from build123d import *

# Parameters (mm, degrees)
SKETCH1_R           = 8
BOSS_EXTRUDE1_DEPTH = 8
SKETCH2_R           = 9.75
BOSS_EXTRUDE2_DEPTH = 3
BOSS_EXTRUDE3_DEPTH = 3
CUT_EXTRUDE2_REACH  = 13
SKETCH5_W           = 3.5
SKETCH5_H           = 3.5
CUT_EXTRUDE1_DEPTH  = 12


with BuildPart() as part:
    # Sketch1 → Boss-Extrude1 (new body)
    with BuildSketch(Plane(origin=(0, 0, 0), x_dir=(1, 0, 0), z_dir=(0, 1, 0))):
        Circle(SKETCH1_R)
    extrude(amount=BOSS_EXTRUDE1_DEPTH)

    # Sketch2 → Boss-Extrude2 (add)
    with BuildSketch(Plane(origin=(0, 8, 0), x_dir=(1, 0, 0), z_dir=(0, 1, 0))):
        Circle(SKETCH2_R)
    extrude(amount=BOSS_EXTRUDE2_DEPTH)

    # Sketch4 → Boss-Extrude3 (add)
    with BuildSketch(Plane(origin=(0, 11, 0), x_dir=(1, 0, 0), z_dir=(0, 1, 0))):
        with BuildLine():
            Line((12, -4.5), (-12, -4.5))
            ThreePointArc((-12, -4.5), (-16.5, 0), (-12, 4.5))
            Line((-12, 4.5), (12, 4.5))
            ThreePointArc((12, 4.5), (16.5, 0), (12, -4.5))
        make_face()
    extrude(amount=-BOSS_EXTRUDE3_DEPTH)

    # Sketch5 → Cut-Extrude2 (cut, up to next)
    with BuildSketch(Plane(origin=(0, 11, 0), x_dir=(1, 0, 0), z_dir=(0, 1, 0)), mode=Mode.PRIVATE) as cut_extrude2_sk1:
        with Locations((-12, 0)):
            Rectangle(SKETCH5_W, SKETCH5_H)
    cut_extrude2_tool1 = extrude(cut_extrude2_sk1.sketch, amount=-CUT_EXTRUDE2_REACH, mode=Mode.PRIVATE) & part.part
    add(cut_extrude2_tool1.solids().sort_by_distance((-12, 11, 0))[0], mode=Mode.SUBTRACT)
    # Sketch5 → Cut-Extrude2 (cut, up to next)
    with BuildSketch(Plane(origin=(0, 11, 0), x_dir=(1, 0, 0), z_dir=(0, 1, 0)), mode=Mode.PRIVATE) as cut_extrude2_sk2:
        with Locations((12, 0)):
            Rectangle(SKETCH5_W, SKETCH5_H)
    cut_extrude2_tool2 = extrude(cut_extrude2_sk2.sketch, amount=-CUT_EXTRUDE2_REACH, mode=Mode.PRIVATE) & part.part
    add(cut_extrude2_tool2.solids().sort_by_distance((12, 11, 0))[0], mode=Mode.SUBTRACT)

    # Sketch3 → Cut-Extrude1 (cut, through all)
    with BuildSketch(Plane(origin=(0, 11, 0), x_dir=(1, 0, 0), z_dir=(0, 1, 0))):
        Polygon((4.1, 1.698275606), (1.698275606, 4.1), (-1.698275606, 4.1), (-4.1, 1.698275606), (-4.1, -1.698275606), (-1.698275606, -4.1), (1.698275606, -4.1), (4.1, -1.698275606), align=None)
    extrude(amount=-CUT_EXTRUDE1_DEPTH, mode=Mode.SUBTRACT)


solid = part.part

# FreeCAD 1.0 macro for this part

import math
import FreeCAD as App
import Part
import Sketcher

V = App.Vector

doc = App.newDocument("Part")
body = doc.addObject("PartDesign::Body", "Body")

# Sketch on XZ plane
sketch1 = doc.addObject("Sketcher::SketchObject", "Sketch")
body.addObject(sketch1)
sketch1.AttachmentSupport = (doc.XZ_Plane, [""])
sketch1.MapMode = "FlatFace"
sketch1.addGeometry(Part.Circle(V(0, 0, 0), V(0, 0, 1), 8), False)
sketch1.addConstraint(Sketcher.Constraint("Coincident", 0, 3, -1, 1))
sketch1.addConstraint(Sketcher.Constraint("Diameter", 0, 16.0))
pad1 = doc.addObject("PartDesign::Pad", "Pad")
body.addObject(pad1)
pad1.Profile = sketch1
pad1.Length = 8
pad1.Reversed = True

# Sketch on XZ plane
sketch2 = doc.addObject("Sketcher::SketchObject", "Sketch001")
body.addObject(sketch2)
sketch2.AttachmentSupport = (doc.XZ_Plane, [""])
sketch2.MapMode = "FlatFace"
sketch2.AttachmentOffset = App.Placement(V(0, 0, -8), App.Rotation())
sketch2.addGeometry(Part.Circle(V(0, 0, 0), V(0, 0, 1), 10), False)
sketch2.addConstraint(Sketcher.Constraint("Coincident", 0, 3, -1, 1))
sketch2.addConstraint(Sketcher.Constraint("Diameter", 0, 19.5))
pad2 = doc.addObject("PartDesign::Pad", "Pad001")
body.addObject(pad2)
pad2.Profile = sketch2
pad2.Length = 3
pad2.Reversed = True

# Sketch on XZ plane
sketch3 = doc.addObject("Sketcher::SketchObject", "Sketch002")
body.addObject(sketch3)
sketch3.AttachmentSupport = (doc.XZ_Plane, [""])
sketch3.MapMode = "FlatFace"
sketch3.AttachmentOffset = App.Placement(V(0, 0, -11), App.Rotation())
sketch3.addGeometry(Part.LineSegment(V(-12, 4.5, 0), V(12, 4.5, 0)), False)
sketch3.addGeometry(Part.ArcOfCircle(Part.Circle(V(12, 0, 0), V(0, 0, 1), 4.5), math.radians(-90), math.radians(90)), False)
sketch3.addGeometry(Part.LineSegment(V(12, -4.5, 0), V(-12, -4.5, 0)), False)
sketch3.addGeometry(Part.ArcOfCircle(Part.Circle(V(-12, 0, 0), V(0, 0, 1), 4.5), math.radians(90), math.radians(270)), False)
sketch3.addConstraint(Sketcher.Constraint("Tangent", 0, 2, 1, 2))
sketch3.addConstraint(Sketcher.Constraint("Tangent", 1, 1, 2, 1))
sketch3.addConstraint(Sketcher.Constraint("Tangent", 2, 2, 3, 2))
sketch3.addConstraint(Sketcher.Constraint("Tangent", 3, 1, 0, 1))
sketch3.addConstraint(Sketcher.Constraint("Horizontal", 0))
sketch3.addConstraint(Sketcher.Constraint("Horizontal", 2))
sketch3.addConstraint(Sketcher.Constraint("Symmetric", 1, 3, 3, 3, -1, 1))
sketch3.addConstraint(Sketcher.Constraint("Radius", 1, 4.5))
sketch3.addConstraint(Sketcher.Constraint("DistanceX", 0, 1, 0, 2, 24.0))
pad3 = doc.addObject("PartDesign::Pad", "Pad002")
body.addObject(pad3)
pad3.Profile = sketch3
pad3.Length = 3

# Sketch on XZ plane
sketch4 = doc.addObject("Sketcher::SketchObject", "Sketch003")
body.addObject(sketch4)
sketch4.AttachmentSupport = (doc.XZ_Plane, [""])
sketch4.MapMode = "FlatFace"
sketch4.AttachmentOffset = App.Placement(V(0, 0, -11), App.Rotation())
sketch4.addGeometry(Part.LineSegment(V(-13.8, -1.8, 0), V(-13.8, 1.8, 0)), False)
sketch4.addGeometry(Part.LineSegment(V(-13.8, 1.8, 0), V(-10.2, 1.8, 0)), False)
sketch4.addGeometry(Part.LineSegment(V(-10.2, 1.8, 0), V(-10.2, -1.8, 0)), False)
sketch4.addGeometry(Part.LineSegment(V(-10.2, -1.8, 0), V(-13.8, -1.8, 0)), False)
sketch4.addConstraint(Sketcher.Constraint("Coincident", 0, 2, 1, 1))
sketch4.addConstraint(Sketcher.Constraint("Coincident", 1, 2, 2, 1))
sketch4.addConstraint(Sketcher.Constraint("Coincident", 2, 2, 3, 1))
sketch4.addConstraint(Sketcher.Constraint("Coincident", 3, 2, 0, 1))
sketch4.addConstraint(Sketcher.Constraint("Vertical", 0))
sketch4.addConstraint(Sketcher.Constraint("Horizontal", 1))
sketch4.addConstraint(Sketcher.Constraint("Vertical", 2))
sketch4.addConstraint(Sketcher.Constraint("Horizontal", 3))
sketch4.addConstraint(Sketcher.Constraint("Equal", 3, 0))
sketch4.addConstraint(Sketcher.Constraint("DistanceX", 1, 1, 1, 2, 3.5))
sketch4.addConstraint(Sketcher.Constraint("DistanceX", 0, 2, -1, 1, 13.75))
sketch4.addConstraint(Sketcher.Constraint("DistanceY", -1, 1, 0, 2, 1.75))
pocket1 = doc.addObject("PartDesign::Pocket", "Pocket")
body.addObject(pocket1)
pocket1.Profile = sketch4
pocket1.Type = "UpToFirst"
pocket1.Reversed = True

# Sketch on XZ plane
sketch5 = doc.addObject("Sketcher::SketchObject", "Sketch004")
body.addObject(sketch5)
sketch5.AttachmentSupport = (doc.XZ_Plane, [""])
sketch5.MapMode = "FlatFace"
sketch5.AttachmentOffset = App.Placement(V(0, 0, -11), App.Rotation())
sketch5.addGeometry(Part.LineSegment(V(10.2, -1.8, 0), V(10.2, 1.8, 0)), False)
sketch5.addGeometry(Part.LineSegment(V(10.2, 1.8, 0), V(13.8, 1.8, 0)), False)
sketch5.addGeometry(Part.LineSegment(V(13.8, 1.8, 0), V(13.8, -1.8, 0)), False)
sketch5.addGeometry(Part.LineSegment(V(13.8, -1.8, 0), V(10.2, -1.8, 0)), False)
sketch5.addConstraint(Sketcher.Constraint("Coincident", 0, 2, 1, 1))
sketch5.addConstraint(Sketcher.Constraint("Coincident", 1, 2, 2, 1))
sketch5.addConstraint(Sketcher.Constraint("Coincident", 2, 2, 3, 1))
sketch5.addConstraint(Sketcher.Constraint("Coincident", 3, 2, 0, 1))
sketch5.addConstraint(Sketcher.Constraint("Vertical", 0))
sketch5.addConstraint(Sketcher.Constraint("Horizontal", 1))
sketch5.addConstraint(Sketcher.Constraint("Vertical", 2))
sketch5.addConstraint(Sketcher.Constraint("Horizontal", 3))
sketch5.addConstraint(Sketcher.Constraint("Equal", 3, 0))
sketch5.addConstraint(Sketcher.Constraint("DistanceX", 1, 1, 1, 2, 3.5))
sketch5.addConstraint(Sketcher.Constraint("DistanceX", -1, 1, 0, 2, 10.25))
sketch5.addConstraint(Sketcher.Constraint("DistanceY", -1, 1, 0, 2, 1.75))
pocket2 = doc.addObject("PartDesign::Pocket", "Pocket001")
body.addObject(pocket2)
pocket2.Profile = sketch5
pocket2.Type = "UpToFirst"
pocket2.Reversed = True

# Sketch on XZ plane
sketch6 = doc.addObject("Sketcher::SketchObject", "Sketch005")
body.addObject(sketch6)
sketch6.AttachmentSupport = (doc.XZ_Plane, [""])
sketch6.MapMode = "FlatFace"
sketch6.AttachmentOffset = App.Placement(V(0, 0, -11), App.Rotation())
sketch6.addGeometry(Part.LineSegment(V(4.1, -1.7, 0), V(1.7, -4.1, 0)), False)
sketch6.addGeometry(Part.LineSegment(V(1.7, -4.1, 0), V(-1.7, -4.1, 0)), False)
sketch6.addGeometry(Part.LineSegment(V(-1.7, -4.1, 0), V(-4.1, -1.7, 0)), False)
sketch6.addGeometry(Part.LineSegment(V(-4.1, -1.7, 0), V(-4.1, 1.7, 0)), False)
sketch6.addGeometry(Part.LineSegment(V(-4.1, 1.7, 0), V(-1.7, 4.1, 0)), False)
sketch6.addGeometry(Part.LineSegment(V(-1.7, 4.1, 0), V(1.7, 4.1, 0)), False)
sketch6.addGeometry(Part.LineSegment(V(1.7, 4.1, 0), V(4.1, 1.7, 0)), False)
sketch6.addGeometry(Part.LineSegment(V(4.1, 1.7, 0), V(4.1, -1.7, 0)), False)
sketch6.addConstraint(Sketcher.Constraint("Coincident", 0, 2, 1, 1))
sketch6.addConstraint(Sketcher.Constraint("Coincident", 1, 2, 2, 1))
sketch6.addConstraint(Sketcher.Constraint("Coincident", 2, 2, 3, 1))
sketch6.addConstraint(Sketcher.Constraint("Coincident", 3, 2, 4, 1))
sketch6.addConstraint(Sketcher.Constraint("Coincident", 4, 2, 5, 1))
sketch6.addConstraint(Sketcher.Constraint("Coincident", 5, 2, 6, 1))
sketch6.addConstraint(Sketcher.Constraint("Coincident", 6, 2, 7, 1))
sketch6.addConstraint(Sketcher.Constraint("Coincident", 7, 2, 0, 1))
sketch6.addConstraint(Sketcher.Constraint("Horizontal", 1))
sketch6.addConstraint(Sketcher.Constraint("Vertical", 3))
sketch6.addConstraint(Sketcher.Constraint("Horizontal", 5))
sketch6.addConstraint(Sketcher.Constraint("Vertical", 7))
sketch6.addConstraint(Sketcher.Constraint("Symmetric", 0, 2, 4, 2, -1, 1))
sketch6.addConstraint(Sketcher.Constraint("Symmetric", 2, 2, 6, 2, -1, 1))
sketch6.addConstraint(Sketcher.Constraint("Perpendicular", 0, 2))
sketch6.addConstraint(Sketcher.Constraint("Perpendicular", 2, 4))
sketch6.addConstraint(Sketcher.Constraint("Perpendicular", 4, 6))
sketch6.addConstraint(Sketcher.Constraint("Horizontal", 3, 2, 6, 2))
sketch6.addConstraint(Sketcher.Constraint("Vertical", 1, 2, 4, 2))
sketch6.addConstraint(Sketcher.Constraint("Equal", 5, 3))
sketch6.addConstraint(Sketcher.Constraint("DistanceY", 0, 2, -1, 1, 4.1))
sketch6.addConstraint(Sketcher.Constraint("DistanceX", 1, 2, 1, 1, 3.396551))
pocket3 = doc.addObject("PartDesign::Pocket", "Pocket002")
body.addObject(pocket3)
pocket3.Profile = sketch6
pocket3.Type = "ThroughAll"
pocket3.Reversed = True

doc.recompute()
